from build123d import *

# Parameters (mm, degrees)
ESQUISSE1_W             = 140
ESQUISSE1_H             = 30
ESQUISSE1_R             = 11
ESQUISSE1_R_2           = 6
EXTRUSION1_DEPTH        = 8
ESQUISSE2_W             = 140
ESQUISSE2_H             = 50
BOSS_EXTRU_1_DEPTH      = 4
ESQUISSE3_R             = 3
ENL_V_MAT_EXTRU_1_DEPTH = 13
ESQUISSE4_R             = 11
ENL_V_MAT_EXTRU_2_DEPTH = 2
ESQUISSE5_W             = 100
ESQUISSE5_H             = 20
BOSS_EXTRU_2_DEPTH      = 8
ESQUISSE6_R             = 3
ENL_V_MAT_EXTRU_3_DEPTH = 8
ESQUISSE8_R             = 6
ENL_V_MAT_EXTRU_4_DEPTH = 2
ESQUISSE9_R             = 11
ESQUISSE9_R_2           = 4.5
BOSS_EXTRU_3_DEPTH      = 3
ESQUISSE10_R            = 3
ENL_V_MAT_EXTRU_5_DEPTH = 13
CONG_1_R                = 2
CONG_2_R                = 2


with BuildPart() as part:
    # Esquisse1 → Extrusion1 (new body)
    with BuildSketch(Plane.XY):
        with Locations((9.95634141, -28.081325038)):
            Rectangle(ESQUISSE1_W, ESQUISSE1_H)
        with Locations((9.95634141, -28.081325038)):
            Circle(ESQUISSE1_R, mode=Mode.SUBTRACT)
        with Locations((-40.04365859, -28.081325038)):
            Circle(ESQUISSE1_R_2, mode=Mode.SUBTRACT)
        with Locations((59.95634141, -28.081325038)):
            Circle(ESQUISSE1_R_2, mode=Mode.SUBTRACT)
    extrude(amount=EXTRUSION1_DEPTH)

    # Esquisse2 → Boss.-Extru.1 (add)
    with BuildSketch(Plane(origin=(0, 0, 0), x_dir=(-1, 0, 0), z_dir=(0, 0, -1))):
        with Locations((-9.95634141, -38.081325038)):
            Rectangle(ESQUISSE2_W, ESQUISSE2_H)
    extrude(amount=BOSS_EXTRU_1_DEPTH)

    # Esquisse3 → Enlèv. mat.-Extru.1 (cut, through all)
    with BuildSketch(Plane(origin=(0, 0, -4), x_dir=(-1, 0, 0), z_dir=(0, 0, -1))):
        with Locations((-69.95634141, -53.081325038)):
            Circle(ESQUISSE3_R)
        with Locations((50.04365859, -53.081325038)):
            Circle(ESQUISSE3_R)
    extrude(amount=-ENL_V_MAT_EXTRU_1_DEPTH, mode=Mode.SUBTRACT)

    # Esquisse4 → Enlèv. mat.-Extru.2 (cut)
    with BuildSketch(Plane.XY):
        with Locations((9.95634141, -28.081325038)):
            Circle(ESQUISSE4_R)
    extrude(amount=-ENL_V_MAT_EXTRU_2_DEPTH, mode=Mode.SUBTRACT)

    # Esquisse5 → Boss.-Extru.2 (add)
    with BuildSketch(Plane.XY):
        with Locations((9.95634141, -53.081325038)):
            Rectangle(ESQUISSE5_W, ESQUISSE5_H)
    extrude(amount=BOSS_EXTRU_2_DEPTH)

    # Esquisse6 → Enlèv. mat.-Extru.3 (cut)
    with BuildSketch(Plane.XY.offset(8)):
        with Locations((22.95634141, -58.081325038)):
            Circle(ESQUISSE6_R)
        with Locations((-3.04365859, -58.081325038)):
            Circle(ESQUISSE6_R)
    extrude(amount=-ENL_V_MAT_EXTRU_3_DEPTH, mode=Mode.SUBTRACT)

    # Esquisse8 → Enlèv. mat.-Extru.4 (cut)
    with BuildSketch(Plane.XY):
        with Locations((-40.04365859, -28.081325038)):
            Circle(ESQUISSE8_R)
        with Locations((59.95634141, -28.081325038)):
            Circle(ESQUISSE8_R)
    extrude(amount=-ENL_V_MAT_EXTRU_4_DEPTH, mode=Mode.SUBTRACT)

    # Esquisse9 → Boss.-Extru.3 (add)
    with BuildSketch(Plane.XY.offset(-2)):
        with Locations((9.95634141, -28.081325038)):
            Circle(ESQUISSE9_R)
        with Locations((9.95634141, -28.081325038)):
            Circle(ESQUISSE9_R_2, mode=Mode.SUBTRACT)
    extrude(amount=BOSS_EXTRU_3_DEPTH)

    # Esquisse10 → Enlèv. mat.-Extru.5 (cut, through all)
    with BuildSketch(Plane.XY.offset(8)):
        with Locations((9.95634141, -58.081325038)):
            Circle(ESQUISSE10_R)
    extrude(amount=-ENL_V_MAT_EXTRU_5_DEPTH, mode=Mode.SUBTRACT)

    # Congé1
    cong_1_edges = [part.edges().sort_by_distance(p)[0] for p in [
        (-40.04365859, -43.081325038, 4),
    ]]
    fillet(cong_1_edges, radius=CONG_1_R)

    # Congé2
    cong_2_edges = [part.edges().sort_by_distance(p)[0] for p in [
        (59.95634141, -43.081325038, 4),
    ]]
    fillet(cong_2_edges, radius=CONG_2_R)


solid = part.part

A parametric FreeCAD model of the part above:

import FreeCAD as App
import Part
import Sketcher

V = App.Vector
Q = App.Units.Quantity


def edges_at(feature, points):
    """Names of the edges that pass closest to the given points."""
    edges = feature.Shape.Edges
    near = lambda p: min(range(len(edges)), key=lambda i: edges[i].distToShape(Part.Vertex(*p))[0])
    return sorted({f"Edge{near(p) + 1}" for p in points})


def add_polygon(sketch, points):
    """Adds a closed chain of lines whose ends are joined by coincident constraints."""
    first, n = sketch.GeometryCount, len(points)
    for a, b in zip(points, points[1:] + points[:1]):
        sketch.addGeometry(Part.LineSegment(App.Vector(*a, 0), App.Vector(*b, 0)), False)
    for i in range(n):
        sketch.addConstraint(Sketcher.Constraint("Coincident", first + i, 2, first + (i + 1) % n, 1))

doc = App.newDocument("Part")
body = doc.addObject("PartDesign::Body", "Body")

# Sketch on XY plane
sketch1 = doc.addObject("Sketcher::SketchObject", "Sketch")
body.addObject(sketch1)
sketch1.AttachmentSupport = (doc.XY_Plane, [""])
sketch1.MapMode = "FlatFace"
add_polygon(sketch1, [(-60, -13), (-60, -43), (80, -43), (80, -13)])  # lines 0-3
sketch1.addGeometry(Part.Circle(V(-40, -28, 0), V(0, 0, 1), 6), False)  # 4
sketch1.addGeometry(Part.Circle(V(10, -28, 0), V(0, 0, 1), 11), False)  # 5
sketch1.addGeometry(Part.Circle(V(60, -28, 0), V(0, 0, 1), 6), False)  # 6
sketch1.addConstraint(Sketcher.Constraint("Vertical", 0))
sketch1.addConstraint(Sketcher.Constraint("Horizontal", 1))
sketch1.addConstraint(Sketcher.Constraint("Vertical", 2))
sketch1.addConstraint(Sketcher.Constraint("Horizontal", 3))
sketch1.addConstraint(Sketcher.Constraint("Equal", 4, 6))
sketch1.addConstraint(Sketcher.Constraint("Horizontal", 4, 3, 5, 3))
sketch1.addConstraint(Sketcher.Constraint("Horizontal", 5, 3, 6, 3))
sketch1.addConstraint(Sketcher.Constraint("Diameter", 4, Q("12 mm")))
sketch1.addConstraint(Sketcher.Constraint("Diameter", 5, Q("22 mm")))
sketch1.addConstraint(Sketcher.Constraint("DistanceX", 1, 1, 1, 2, Q("140 mm")))
sketch1.addConstraint(Sketcher.Constraint("DistanceY", 0, 2, 0, 1, Q("30 mm")))
sketch1.addConstraint(Sketcher.Constraint("DistanceX", 4, 3, 5, 3, Q("50 mm")))
sketch1.addConstraint(Sketcher.Constraint("DistanceX", 5, 3, 6, 3, Q("50 mm")))
sketch1.addConstraint(Sketcher.Constraint("DistanceX", 0, 2, 4, 3, Q("20 mm")))
sketch1.addConstraint(Sketcher.Constraint("DistanceY", 0, 2, 4, 3, Q("15 mm")))
sketch1.addConstraint(Sketcher.Constraint("DistanceX", 4, 3, -1, 1, Q("40.043659 mm")))
sketch1.addConstraint(Sketcher.Constraint("DistanceY", 4, 3, -1, 1, Q("28.081325 mm")))
pad1 = doc.addObject("PartDesign::Pad", "Pad")
body.addObject(pad1)
pad1.Profile = sketch1
pad1.Length = 8

# Sketch on XY plane
sketch2 = doc.addObject("Sketcher::SketchObject", "Sketch001")
body.addObject(sketch2)
sketch2.AttachmentSupport = (doc.XY_Plane, [""])
sketch2.MapMode = "FlatFace"
add_polygon(sketch2, [(80, -13), (80, -63), (-60, -63), (-60, -13)])  # lines 0-3
sketch2.addConstraint(Sketcher.Constraint("Vertical", 0))
sketch2.addConstraint(Sketcher.Constraint("Horizontal", 1))
sketch2.addConstraint(Sketcher.Constraint("Vertical", 2))
sketch2.addConstraint(Sketcher.Constraint("Horizontal", 3))
sketch2.addConstraint(Sketcher.Constraint("DistanceX", 1, 2, 1, 1, Q("140 mm")))
sketch2.addConstraint(Sketcher.Constraint("DistanceY", 0, 2, 0, 1, Q("50 mm")))
sketch2.addConstraint(Sketcher.Constraint("DistanceX", -1, 1, 0, 2, Q("79.956341 mm")))
sketch2.addConstraint(Sketcher.Constraint("DistanceY", 0, 2, -1, 1, Q("63.081325 mm")))
pad2 = doc.addObject("PartDesign::Pad", "Pad001")
body.addObject(pad2)
pad2.Profile = sketch2
pad2.Length = 4
pad2.Reversed = True

# Sketch on XY plane
sketch3 = doc.addObject("Sketcher::SketchObject", "Sketch002")
body.addObject(sketch3)
sketch3.AttachmentSupport = (doc.XY_Plane, [""])
sketch3.MapMode = "FlatFace"
sketch3.AttachmentOffset = App.Placement(V(0, 0, -4), App.Rotation())
sketch3.addGeometry(Part.Circle(V(70, -53.1, 0), V(0, 0, 1), 3), False)
sketch3.addGeometry(Part.Circle(V(-50, -53.1, 0), V(0, 0, 1), 3), False)
sketch3.addConstraint(Sketcher.Constraint("Equal", 0, 1))
sketch3.addConstraint(Sketcher.Constraint("Horizontal", 0, 3, 1, 3))
sketch3.addConstraint(Sketcher.Constraint("Diameter", 0, Q("6 mm")))
sketch3.addConstraint(Sketcher.Constraint("DistanceX", 1, 3, 0, 3, Q("120 mm")))
sketch3.addConstraint(Sketcher.Constraint("DistanceX", -1, 1, 0, 3, Q("69.956341 mm")))
sketch3.addConstraint(Sketcher.Constraint("DistanceY", 0, 3, -1, 1, Q("53.081325 mm")))
pocket1 = doc.addObject("PartDesign::Pocket", "Pocket")
body.addObject(pocket1)
pocket1.Profile = sketch3
pocket1.Type = "ThroughAll"
pocket1.Reversed = True

# Sketch on XY plane
sketch4 = doc.addObject("Sketcher::SketchObject", "Sketch003")
body.addObject(sketch4)
sketch4.AttachmentSupport = (doc.XY_Plane, [""])
sketch4.MapMode = "FlatFace"
sketch4.addGeometry(Part.Circle(V(10, -28, 0), V(0, 0, 1), 11), False)
sketch4.addConstraint(Sketcher.Constraint("Diameter", 0, Q("22 mm")))
sketch4.addConstraint(Sketcher.Constraint("DistanceX", -1, 1, 0, 3, Q("9.956341 mm")))
sketch4.addConstraint(Sketcher.Constraint("DistanceY", 0, 3, -1, 1, Q("28.081325 mm")))
pocket2 = doc.addObject("PartDesign::Pocket", "Pocket001")
body.addObject(pocket2)
pocket2.Profile = sketch4
pocket2.Length = 2

# Sketch on XY plane
sketch5 = doc.addObject("Sketcher::SketchObject", "Sketch004")
body.addObject(sketch5)
sketch5.AttachmentSupport = (doc.XY_Plane, [""])
sketch5.MapMode = "FlatFace"
add_polygon(sketch5, [(-40, -43), (-40, -63), (60, -63), (60, -43)])  # lines 0-3
sketch5.addConstraint(Sketcher.Constraint("Vertical", 0))
sketch5.addConstraint(Sketcher.Constraint("Horizontal", 1))
sketch5.addConstraint(Sketcher.Constraint("Vertical", 2))
sketch5.addConstraint(Sketcher.Constraint("Horizontal", 3))
sketch5.addConstraint(Sketcher.Constraint("DistanceX", 1, 1, 1, 2, Q("100 mm")))
sketch5.addConstraint(Sketcher.Constraint("DistanceY", 0, 2, 0, 1, Q("20 mm")))
sketch5.addConstraint(Sketcher.Constraint("DistanceX", 0, 2, -1, 1, Q("40.043659 mm")))
sketch5.addConstraint(Sketcher.Constraint("DistanceY", 0, 2, -1, 1, Q("63.081325 mm")))
pad3 = doc.addObject("PartDesign::Pad", "Pad002")
body.addObject(pad3)
pad3.Profile = sketch5
pad3.Length = 8

# Sketch on XY plane
sketch6 = doc.addObject("Sketcher::SketchObject", "Sketch005")
body.addObject(sketch6)
sketch6.AttachmentSupport = (doc.XY_Plane, [""])
sketch6.MapMode = "FlatFace"
sketch6.AttachmentOffset = App.Placement(V(0, 0, 8), App.Rotation())
sketch6.addGeometry(Part.Circle(V(23, -58.1, 0), V(0, 0, 1), 3), False)
sketch6.addGeometry(Part.Circle(V(-3, -58.1, 0), V(0, 0, 1), 3), False)
sketch6.addConstraint(Sketcher.Constraint("Equal", 0, 1))
sketch6.addConstraint(Sketcher.Constraint("Horizontal", 0, 3, 1, 3))
sketch6.addConstraint(Sketcher.Constraint("Diameter", 0, Q("6 mm")))
sketch6.addConstraint(Sketcher.Constraint("DistanceX", 1, 3, 0, 3, Q("26 mm")))
sketch6.addConstraint(Sketcher.Constraint("DistanceX", -1, 1, 0, 3, Q("22.956341 mm")))
sketch6.addConstraint(Sketcher.Constraint("DistanceY", 0, 3, -1, 1, Q("58.081325 mm")))
pocket3 = doc.addObject("PartDesign::Pocket", "Pocket002")
body.addObject(pocket3)
pocket3.Profile = sketch6
pocket3.Length = 8

# Sketch on XY plane
sketch7 = doc.addObject("Sketcher::SketchObject", "Sketch006")
body.addObject(sketch7)
sketch7.AttachmentSupport = (doc.XY_Plane, [""])
sketch7.MapMode = "FlatFace"
sketch7.addGeometry(Part.Circle(V(-40, -28, 0), V(0, 0, 1), 6), False)
sketch7.addGeometry(Part.Circle(V(60, -28, 0), V(0, 0, 1), 6), False)
sketch7.addConstraint(Sketcher.Constraint("Equal", 0, 1))
sketch7.addConstraint(Sketcher.Constraint("Horizontal", 0, 3, 1, 3))
sketch7.addConstraint(Sketcher.Constraint("Diameter", 0, Q("12 mm")))
sketch7.addConstraint(Sketcher.Constraint("DistanceX", 0, 3, 1, 3, Q("100 mm")))
sketch7.addConstraint(Sketcher.Constraint("DistanceX", 0, 3, -1, 1, Q("40.043659 mm")))
sketch7.addConstraint(Sketcher.Constraint("DistanceY", 0, 3, -1, 1, Q("28.081325 mm")))
pocket4 = doc.addObject("PartDesign::Pocket", "Pocket003")
body.addObject(pocket4)
pocket4.Profile = sketch7
pocket4.Length = 2

# Sketch on XY plane
sketch8 = doc.addObject("Sketcher::SketchObject", "Sketch007")
body.addObject(sketch8)
sketch8.AttachmentSupport = (doc.XY_Plane, [""])
sketch8.MapMode = "FlatFace"
sketch8.AttachmentOffset = App.Placement(V(0, 0, -2), App.Rotation())
sketch8.addGeometry(Part.Circle(V(10, -28.1, 0), V(0, 0, 1), 11), False)
sketch8.addGeometry(Part.Circle(V(10, -28.1, 0), V(0, 0, 1), 4.5), False)
sketch8.addConstraint(Sketcher.Constraint("Coincident", 1, 3, 0, 3))
sketch8.addConstraint(Sketcher.Constraint("Diameter", 0, Q("22 mm")))
sketch8.addConstraint(Sketcher.Constraint("Diameter", 1, Q("9 mm")))
sketch8.addConstraint(Sketcher.Constraint("DistanceX", -1, 1, 0, 3, Q("9.956341 mm")))
sketch8.addConstraint(Sketcher.Constraint("DistanceY", 0, 3, -1, 1, Q("28.081325 mm")))
pad4 = doc.addObject("PartDesign::Pad", "Pad003")
body.addObject(pad4)
pad4.Profile = sketch8
pad4.Length = 3

# Sketch on XY plane
sketch9 = doc.addObject("Sketcher::SketchObject", "Sketch008")
body.addObject(sketch9)
sketch9.AttachmentSupport = (doc.XY_Plane, [""])
sketch9.MapMode = "FlatFace"
sketch9.AttachmentOffset = App.Placement(V(0, 0, 8), App.Rotation())
sketch9.addGeometry(Part.Circle(V(10, -58.1, 0), V(0, 0, 1), 3), False)
sketch9.addConstraint(Sketcher.Constraint("Diameter", 0, Q("6 mm")))
sketch9.addConstraint(Sketcher.Constraint("DistanceX", -1, 1, 0, 3, Q("9.956341 mm")))
sketch9.addConstraint(Sketcher.Constraint("DistanceY", 0, 3, -1, 1, Q("58.081325 mm")))
pocket5 = doc.addObject("PartDesign::Pocket", "Pocket004")
body.addObject(pocket5)
pocket5.Profile = sketch9
pocket5.Type = "ThroughAll"
doc.recompute()

fillet = doc.addObject("PartDesign::Fillet", "Fillet")
body.addObject(fillet)
fillet.Base = (pocket5, edges_at(pocket5, [(-40.044, -43.081, 4)]))
fillet.Radius = 2
doc.recompute()

fillet2 = doc.addObject("PartDesign::Fillet", "Fillet001")
body.addObject(fillet2)
fillet2.Base = (fillet, edges_at(fillet, [(59.956, -43.081, 4)]))
fillet2.Radius = 2

doc.recompute()
